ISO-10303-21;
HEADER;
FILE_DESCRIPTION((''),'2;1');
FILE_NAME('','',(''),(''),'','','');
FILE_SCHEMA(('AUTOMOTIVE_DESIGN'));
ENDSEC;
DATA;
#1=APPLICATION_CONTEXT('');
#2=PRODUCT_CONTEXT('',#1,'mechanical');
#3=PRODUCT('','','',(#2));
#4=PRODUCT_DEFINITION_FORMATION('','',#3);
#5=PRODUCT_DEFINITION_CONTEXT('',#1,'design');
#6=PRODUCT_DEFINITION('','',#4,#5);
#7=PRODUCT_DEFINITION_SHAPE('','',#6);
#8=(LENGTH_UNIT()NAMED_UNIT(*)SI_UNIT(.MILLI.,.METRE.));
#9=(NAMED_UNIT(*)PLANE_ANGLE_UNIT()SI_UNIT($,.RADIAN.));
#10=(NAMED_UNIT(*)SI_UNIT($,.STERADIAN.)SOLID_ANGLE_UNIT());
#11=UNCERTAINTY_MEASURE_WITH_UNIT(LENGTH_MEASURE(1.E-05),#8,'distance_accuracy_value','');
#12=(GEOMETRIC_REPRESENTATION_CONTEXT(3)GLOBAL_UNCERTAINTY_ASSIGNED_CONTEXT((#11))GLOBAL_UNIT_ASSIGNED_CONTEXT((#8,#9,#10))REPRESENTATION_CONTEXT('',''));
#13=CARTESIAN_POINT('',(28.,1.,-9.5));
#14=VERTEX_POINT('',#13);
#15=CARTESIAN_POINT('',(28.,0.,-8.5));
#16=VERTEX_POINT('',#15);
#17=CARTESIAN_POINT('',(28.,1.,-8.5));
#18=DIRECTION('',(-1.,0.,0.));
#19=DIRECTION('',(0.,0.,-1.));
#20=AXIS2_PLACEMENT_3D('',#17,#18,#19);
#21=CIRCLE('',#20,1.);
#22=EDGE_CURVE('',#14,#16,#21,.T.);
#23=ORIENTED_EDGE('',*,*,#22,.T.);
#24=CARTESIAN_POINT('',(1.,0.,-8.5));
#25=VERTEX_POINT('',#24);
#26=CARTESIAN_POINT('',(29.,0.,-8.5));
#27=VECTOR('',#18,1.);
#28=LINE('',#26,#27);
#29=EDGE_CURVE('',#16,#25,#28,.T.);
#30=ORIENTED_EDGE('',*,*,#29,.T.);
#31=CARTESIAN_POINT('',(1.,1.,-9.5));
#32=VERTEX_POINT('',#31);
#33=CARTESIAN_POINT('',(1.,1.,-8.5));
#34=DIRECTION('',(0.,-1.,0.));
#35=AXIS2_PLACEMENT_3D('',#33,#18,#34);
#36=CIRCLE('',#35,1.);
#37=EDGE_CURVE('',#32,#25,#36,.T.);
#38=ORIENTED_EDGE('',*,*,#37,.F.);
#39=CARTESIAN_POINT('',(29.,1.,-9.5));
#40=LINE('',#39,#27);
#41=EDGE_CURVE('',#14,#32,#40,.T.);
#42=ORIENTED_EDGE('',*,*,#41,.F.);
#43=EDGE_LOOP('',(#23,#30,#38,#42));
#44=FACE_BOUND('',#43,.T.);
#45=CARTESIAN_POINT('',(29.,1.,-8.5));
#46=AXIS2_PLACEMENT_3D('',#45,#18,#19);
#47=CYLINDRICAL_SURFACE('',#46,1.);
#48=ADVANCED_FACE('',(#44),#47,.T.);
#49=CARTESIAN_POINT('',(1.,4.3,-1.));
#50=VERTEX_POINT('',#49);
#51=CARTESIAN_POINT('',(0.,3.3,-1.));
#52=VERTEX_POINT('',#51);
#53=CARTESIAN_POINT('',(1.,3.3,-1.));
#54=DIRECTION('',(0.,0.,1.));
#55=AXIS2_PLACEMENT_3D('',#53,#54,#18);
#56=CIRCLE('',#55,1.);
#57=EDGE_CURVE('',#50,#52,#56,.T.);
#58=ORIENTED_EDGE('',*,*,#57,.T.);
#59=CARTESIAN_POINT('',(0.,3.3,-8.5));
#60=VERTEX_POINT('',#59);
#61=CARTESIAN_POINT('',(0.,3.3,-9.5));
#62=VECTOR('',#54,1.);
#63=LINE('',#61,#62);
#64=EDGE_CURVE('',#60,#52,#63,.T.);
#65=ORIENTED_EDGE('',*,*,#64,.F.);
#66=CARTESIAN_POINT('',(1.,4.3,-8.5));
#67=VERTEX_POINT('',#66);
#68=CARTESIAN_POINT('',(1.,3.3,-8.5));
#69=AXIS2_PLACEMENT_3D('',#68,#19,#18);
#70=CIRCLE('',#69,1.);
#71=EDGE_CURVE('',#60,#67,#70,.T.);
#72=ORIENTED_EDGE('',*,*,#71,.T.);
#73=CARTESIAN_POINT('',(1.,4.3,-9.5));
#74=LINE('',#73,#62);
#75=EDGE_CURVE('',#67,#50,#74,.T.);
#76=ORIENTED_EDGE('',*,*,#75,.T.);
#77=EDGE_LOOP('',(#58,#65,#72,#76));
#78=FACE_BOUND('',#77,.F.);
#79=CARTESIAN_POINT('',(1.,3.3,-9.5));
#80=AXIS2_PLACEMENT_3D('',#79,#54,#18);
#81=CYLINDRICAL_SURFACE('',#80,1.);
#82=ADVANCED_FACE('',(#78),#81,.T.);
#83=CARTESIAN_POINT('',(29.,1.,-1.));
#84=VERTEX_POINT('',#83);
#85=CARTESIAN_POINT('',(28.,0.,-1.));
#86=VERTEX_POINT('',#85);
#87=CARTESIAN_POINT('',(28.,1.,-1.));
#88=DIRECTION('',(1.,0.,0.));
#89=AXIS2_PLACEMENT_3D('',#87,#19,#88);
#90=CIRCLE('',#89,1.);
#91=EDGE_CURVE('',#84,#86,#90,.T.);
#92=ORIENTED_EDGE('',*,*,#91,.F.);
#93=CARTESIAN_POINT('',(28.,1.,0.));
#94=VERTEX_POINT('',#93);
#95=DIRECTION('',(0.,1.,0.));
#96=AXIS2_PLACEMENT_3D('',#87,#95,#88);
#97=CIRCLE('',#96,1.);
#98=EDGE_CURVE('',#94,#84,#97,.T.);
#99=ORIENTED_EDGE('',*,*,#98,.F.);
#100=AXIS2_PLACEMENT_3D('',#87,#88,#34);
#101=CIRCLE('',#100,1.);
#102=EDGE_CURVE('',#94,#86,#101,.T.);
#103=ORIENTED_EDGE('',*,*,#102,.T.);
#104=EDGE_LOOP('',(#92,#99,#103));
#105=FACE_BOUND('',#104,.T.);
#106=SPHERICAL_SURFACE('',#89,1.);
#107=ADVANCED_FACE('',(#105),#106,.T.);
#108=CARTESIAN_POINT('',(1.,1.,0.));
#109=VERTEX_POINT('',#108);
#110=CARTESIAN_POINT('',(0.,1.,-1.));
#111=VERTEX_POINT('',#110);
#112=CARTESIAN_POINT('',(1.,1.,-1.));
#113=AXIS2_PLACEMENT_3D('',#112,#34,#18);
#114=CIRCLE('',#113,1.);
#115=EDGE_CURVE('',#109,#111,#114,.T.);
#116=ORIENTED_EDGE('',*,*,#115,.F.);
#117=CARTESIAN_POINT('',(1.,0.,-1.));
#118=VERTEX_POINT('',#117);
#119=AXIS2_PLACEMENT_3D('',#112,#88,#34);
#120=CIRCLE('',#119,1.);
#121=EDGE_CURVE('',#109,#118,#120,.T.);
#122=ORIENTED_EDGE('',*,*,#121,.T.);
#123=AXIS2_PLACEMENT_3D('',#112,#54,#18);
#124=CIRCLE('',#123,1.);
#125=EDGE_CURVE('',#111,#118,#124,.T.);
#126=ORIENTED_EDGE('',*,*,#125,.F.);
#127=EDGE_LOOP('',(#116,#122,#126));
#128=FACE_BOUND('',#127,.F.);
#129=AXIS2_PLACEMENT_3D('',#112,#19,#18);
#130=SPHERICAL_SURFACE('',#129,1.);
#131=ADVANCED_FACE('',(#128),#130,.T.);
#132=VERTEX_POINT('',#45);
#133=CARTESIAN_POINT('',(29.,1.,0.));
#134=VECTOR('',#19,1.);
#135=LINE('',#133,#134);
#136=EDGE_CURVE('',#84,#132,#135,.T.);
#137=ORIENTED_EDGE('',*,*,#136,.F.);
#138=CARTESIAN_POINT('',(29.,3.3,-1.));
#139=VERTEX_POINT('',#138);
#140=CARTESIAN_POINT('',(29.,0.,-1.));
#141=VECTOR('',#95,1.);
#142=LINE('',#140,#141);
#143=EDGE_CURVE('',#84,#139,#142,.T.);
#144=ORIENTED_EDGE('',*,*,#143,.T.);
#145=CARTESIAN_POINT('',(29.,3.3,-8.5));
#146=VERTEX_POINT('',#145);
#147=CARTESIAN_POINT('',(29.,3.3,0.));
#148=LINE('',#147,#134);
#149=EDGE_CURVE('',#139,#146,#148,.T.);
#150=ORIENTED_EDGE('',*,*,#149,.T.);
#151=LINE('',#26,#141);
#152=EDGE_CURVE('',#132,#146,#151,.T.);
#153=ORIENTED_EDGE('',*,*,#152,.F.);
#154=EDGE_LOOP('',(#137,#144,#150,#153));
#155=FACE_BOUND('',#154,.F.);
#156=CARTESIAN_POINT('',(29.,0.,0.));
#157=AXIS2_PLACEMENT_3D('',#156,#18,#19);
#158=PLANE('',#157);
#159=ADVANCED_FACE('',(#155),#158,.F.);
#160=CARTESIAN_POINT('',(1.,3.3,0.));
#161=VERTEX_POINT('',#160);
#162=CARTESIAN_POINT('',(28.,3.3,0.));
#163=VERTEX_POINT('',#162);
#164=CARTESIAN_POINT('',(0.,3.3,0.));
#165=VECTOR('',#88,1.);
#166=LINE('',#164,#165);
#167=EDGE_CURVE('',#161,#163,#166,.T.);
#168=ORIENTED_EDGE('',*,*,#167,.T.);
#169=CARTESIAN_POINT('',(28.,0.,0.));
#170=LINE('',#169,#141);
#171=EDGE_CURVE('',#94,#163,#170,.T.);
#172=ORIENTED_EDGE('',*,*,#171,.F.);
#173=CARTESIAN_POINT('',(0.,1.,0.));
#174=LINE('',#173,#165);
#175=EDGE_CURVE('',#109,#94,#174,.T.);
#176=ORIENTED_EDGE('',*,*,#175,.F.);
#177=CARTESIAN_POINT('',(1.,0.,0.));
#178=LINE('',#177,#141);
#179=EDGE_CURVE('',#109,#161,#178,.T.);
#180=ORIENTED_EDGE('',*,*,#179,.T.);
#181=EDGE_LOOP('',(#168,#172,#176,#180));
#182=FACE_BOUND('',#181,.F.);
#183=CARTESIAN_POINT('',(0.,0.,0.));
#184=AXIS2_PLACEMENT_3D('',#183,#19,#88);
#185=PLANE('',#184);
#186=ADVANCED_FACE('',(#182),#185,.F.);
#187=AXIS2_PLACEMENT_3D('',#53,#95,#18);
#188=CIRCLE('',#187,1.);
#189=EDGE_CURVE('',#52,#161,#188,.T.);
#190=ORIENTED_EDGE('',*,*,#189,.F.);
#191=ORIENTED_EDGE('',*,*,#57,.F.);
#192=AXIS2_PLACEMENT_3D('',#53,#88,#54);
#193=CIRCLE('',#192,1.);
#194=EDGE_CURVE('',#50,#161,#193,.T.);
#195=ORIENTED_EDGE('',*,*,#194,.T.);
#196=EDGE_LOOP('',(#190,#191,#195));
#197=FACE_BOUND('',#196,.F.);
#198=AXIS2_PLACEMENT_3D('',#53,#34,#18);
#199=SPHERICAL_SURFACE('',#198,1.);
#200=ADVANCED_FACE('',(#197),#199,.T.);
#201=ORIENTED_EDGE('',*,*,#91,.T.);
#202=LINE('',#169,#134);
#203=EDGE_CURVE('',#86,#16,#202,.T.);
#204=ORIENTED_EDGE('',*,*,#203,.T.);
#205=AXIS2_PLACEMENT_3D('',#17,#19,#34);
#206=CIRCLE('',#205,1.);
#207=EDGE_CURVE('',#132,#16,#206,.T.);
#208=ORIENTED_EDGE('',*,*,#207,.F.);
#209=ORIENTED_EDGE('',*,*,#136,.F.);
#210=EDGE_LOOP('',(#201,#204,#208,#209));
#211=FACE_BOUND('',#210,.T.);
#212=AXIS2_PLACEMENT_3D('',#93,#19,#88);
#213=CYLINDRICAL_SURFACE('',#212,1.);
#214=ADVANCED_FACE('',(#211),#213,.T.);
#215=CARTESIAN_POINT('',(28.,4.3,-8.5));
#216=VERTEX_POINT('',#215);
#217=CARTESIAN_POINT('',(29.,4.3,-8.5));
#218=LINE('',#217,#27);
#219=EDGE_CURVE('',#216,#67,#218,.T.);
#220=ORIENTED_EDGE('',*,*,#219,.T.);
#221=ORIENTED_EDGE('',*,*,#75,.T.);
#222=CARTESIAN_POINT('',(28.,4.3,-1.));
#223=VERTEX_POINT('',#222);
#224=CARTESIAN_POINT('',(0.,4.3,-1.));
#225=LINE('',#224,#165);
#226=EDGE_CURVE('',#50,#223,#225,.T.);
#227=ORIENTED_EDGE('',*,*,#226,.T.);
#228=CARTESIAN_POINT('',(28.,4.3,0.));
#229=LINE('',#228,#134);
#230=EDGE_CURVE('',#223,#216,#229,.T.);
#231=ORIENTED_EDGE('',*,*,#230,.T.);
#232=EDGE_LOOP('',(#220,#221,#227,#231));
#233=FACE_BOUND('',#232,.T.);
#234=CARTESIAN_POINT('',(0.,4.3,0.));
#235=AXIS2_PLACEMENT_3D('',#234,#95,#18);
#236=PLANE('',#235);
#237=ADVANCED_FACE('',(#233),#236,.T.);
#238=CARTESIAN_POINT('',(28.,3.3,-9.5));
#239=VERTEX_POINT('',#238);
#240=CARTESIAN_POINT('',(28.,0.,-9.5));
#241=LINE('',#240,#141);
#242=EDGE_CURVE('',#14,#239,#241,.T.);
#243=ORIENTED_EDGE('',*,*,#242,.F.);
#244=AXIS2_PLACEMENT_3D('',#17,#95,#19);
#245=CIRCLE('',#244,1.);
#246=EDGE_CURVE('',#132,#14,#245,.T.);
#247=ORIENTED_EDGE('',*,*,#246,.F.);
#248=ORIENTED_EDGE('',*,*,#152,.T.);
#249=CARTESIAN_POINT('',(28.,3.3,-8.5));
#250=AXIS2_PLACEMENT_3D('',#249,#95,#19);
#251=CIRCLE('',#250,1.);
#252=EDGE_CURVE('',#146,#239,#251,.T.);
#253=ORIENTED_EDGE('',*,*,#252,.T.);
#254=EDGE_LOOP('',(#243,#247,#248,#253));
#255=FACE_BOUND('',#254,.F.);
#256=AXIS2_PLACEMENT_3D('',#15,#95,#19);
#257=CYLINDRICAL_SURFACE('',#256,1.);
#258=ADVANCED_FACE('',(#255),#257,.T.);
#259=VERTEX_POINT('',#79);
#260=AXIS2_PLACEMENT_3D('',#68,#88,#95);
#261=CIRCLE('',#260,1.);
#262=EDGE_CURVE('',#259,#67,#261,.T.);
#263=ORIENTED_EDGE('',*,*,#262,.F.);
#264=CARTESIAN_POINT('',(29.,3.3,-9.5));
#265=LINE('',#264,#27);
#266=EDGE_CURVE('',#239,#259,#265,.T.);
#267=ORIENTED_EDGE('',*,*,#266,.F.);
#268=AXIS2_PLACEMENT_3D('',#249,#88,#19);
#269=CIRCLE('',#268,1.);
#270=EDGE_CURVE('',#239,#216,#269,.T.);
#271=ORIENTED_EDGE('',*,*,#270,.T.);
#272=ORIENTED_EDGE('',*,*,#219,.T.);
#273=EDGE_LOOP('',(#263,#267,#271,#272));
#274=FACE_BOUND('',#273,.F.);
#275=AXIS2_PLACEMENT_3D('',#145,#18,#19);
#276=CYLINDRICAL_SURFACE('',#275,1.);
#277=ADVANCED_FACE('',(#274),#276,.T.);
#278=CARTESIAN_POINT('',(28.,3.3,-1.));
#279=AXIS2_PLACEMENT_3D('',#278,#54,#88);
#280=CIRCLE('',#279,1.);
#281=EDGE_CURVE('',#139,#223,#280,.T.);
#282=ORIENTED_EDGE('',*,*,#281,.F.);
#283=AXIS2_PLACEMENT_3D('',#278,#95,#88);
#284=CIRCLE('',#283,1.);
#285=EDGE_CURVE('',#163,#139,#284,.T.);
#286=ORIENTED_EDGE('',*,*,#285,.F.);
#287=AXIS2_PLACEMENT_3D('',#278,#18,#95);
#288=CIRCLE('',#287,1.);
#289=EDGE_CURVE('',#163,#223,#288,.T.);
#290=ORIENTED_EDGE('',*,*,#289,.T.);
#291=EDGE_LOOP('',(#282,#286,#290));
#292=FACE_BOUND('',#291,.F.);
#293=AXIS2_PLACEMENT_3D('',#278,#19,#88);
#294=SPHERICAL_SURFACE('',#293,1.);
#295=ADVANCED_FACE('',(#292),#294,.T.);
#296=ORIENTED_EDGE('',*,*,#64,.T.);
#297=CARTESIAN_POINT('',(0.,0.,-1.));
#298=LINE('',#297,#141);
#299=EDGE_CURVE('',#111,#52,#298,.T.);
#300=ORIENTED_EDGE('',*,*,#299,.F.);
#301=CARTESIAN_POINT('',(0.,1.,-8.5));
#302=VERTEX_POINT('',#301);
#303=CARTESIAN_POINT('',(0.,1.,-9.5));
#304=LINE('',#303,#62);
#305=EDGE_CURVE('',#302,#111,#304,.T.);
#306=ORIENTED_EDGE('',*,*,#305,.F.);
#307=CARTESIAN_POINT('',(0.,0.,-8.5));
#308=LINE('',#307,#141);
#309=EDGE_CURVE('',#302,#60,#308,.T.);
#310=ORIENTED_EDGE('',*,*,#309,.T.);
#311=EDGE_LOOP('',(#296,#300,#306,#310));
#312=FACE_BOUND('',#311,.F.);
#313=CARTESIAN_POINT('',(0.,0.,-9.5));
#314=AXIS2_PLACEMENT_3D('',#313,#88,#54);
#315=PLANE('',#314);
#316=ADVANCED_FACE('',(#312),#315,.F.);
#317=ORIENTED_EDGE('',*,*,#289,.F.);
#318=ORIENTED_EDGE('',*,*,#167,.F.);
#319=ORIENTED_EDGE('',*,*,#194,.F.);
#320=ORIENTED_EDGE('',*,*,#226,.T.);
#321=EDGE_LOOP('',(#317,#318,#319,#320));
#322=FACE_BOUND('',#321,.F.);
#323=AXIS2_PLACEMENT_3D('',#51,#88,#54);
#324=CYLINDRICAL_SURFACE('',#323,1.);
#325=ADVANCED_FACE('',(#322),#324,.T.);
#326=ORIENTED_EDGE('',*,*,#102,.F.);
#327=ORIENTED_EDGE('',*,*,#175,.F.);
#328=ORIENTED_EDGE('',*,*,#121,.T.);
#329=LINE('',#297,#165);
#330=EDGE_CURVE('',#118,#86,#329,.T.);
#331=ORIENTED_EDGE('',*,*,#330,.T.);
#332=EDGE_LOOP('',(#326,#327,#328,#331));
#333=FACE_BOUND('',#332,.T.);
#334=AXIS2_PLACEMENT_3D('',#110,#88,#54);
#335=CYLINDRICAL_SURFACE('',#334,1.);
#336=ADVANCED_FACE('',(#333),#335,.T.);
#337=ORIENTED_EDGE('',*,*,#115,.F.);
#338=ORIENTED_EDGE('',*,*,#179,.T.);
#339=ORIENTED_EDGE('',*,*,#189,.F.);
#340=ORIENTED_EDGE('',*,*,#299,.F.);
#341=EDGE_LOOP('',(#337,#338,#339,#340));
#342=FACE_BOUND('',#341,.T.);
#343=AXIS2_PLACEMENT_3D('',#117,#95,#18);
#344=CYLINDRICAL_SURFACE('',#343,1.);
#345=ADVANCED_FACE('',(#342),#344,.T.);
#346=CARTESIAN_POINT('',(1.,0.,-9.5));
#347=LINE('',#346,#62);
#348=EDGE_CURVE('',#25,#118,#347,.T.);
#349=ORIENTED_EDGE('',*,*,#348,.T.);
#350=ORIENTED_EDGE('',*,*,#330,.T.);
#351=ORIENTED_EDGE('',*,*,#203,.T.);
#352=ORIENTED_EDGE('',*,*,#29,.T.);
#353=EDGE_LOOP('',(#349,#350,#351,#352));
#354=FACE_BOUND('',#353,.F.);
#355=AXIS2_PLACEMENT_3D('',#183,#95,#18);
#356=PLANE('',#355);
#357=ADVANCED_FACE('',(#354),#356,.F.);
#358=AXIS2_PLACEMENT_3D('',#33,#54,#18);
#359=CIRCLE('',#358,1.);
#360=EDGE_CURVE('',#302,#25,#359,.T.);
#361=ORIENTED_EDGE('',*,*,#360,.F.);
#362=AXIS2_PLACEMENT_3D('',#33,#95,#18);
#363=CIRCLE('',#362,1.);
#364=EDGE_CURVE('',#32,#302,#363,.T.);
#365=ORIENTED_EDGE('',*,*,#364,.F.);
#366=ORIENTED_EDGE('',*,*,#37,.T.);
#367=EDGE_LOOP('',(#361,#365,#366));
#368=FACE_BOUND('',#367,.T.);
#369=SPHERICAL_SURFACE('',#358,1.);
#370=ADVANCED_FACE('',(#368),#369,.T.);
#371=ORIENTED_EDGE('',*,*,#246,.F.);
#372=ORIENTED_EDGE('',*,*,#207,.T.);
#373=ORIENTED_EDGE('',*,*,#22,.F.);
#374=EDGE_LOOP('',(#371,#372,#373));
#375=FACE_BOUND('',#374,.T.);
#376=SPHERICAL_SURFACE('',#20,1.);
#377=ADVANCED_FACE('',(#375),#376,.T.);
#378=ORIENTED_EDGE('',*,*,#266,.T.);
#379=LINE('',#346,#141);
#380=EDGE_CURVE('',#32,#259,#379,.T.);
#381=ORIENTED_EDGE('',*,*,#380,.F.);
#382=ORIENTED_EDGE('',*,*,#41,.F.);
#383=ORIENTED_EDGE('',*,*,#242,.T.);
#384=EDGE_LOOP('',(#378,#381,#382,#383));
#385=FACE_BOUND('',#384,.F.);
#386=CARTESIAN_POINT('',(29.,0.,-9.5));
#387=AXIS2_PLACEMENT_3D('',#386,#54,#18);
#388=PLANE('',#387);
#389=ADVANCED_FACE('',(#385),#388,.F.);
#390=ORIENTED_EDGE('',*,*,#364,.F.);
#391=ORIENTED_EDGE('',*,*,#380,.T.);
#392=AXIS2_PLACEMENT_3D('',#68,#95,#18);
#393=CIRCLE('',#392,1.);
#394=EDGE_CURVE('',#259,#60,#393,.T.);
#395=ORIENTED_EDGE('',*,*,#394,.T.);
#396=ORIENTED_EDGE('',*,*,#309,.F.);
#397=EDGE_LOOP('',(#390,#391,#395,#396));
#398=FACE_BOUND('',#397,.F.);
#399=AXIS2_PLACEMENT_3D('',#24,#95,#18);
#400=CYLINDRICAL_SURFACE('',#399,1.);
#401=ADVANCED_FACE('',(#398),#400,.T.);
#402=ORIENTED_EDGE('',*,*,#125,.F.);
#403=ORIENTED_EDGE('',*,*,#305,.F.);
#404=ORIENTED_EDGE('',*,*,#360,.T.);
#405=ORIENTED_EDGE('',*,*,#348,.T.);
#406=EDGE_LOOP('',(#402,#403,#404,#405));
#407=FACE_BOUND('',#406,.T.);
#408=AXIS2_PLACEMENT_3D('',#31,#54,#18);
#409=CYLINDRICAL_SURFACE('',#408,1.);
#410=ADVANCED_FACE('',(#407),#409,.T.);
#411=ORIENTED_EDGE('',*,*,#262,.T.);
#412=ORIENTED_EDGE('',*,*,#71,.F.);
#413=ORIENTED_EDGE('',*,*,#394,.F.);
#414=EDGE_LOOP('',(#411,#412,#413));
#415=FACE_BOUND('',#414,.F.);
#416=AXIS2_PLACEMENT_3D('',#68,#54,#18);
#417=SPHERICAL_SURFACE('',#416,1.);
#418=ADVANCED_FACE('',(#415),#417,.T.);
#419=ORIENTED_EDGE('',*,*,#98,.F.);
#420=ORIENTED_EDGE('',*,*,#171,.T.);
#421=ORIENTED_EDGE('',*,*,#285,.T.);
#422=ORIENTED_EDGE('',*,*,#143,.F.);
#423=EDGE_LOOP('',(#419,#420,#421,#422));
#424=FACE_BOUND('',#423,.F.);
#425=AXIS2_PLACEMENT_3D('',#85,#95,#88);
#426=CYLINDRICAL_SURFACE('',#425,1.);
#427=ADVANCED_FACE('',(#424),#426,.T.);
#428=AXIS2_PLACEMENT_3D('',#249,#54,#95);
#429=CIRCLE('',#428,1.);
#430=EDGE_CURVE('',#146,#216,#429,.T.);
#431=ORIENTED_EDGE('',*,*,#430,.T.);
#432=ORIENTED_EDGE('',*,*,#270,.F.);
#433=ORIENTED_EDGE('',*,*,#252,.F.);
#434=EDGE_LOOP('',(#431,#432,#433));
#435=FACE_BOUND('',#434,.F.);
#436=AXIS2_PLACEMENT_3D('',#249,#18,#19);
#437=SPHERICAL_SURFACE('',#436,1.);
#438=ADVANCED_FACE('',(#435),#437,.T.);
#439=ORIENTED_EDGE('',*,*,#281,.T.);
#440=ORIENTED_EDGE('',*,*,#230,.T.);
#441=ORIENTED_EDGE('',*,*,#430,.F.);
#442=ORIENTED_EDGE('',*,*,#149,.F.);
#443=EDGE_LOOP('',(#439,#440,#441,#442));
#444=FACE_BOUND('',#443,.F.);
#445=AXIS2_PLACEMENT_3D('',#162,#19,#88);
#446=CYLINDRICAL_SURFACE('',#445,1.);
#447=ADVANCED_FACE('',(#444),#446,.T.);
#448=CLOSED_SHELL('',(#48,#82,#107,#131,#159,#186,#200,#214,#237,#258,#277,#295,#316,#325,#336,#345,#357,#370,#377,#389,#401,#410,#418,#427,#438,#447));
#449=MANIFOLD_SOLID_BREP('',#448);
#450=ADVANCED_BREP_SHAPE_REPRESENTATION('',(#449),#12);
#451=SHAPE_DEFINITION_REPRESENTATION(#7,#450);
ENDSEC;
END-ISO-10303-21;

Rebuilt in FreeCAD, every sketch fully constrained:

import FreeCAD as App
import Part
import Sketcher


def add_polygon(sketch, points):
    """Adds a closed chain of lines whose ends are joined by coincident constraints."""
    first, n = sketch.GeometryCount, len(points)
    for a, b in zip(points, points[1:] + points[:1]):
        sketch.addGeometry(Part.LineSegment(App.Vector(*a, 0), App.Vector(*b, 0)), False)
    for i in range(n):
        sketch.addConstraint(Sketcher.Constraint("Coincident", first + i, 2, first + (i + 1) % n, 1))

doc = App.newDocument("Part")
body = doc.addObject("PartDesign::Body", "Body")

sketch1 = body.newObject("Sketcher::SketchObject", "Sketch")
sketch1.AttachmentSupport = (doc.getObject("XZ_Plane"), [""])
sketch1.MapMode = "FlatFace"
add_polygon(sketch1, [(0, -10), (0, 0), (29, 0), (29, -10)])
sketch1.addConstraint([
    Sketcher.Constraint("Vertical", 0),
    Sketcher.Constraint("Horizontal", 1),
    Sketcher.Constraint("Vertical", 2),
    Sketcher.Constraint("Horizontal", 3),
    Sketcher.Constraint("Coincident", 0, 2, -1, 1),
    Sketcher.Constraint("DistanceX", 1, 1, 1, 2, 29.0),
    Sketcher.Constraint("DistanceY", 0, 1, 0, 2, 9.5),
])
pad1 = body.newObject("PartDesign::Pad", "Pad")
pad1.Profile = sketch1
pad1.Length = 4.3
pad1.Reversed = True
doc.recompute()

fillet = body.newObject("PartDesign::Fillet", "Fillet")
fillet.Base = (pad1, ["Edge1"])
fillet.UseAllEdges = True
fillet.Radius = 1

doc.recompute()
